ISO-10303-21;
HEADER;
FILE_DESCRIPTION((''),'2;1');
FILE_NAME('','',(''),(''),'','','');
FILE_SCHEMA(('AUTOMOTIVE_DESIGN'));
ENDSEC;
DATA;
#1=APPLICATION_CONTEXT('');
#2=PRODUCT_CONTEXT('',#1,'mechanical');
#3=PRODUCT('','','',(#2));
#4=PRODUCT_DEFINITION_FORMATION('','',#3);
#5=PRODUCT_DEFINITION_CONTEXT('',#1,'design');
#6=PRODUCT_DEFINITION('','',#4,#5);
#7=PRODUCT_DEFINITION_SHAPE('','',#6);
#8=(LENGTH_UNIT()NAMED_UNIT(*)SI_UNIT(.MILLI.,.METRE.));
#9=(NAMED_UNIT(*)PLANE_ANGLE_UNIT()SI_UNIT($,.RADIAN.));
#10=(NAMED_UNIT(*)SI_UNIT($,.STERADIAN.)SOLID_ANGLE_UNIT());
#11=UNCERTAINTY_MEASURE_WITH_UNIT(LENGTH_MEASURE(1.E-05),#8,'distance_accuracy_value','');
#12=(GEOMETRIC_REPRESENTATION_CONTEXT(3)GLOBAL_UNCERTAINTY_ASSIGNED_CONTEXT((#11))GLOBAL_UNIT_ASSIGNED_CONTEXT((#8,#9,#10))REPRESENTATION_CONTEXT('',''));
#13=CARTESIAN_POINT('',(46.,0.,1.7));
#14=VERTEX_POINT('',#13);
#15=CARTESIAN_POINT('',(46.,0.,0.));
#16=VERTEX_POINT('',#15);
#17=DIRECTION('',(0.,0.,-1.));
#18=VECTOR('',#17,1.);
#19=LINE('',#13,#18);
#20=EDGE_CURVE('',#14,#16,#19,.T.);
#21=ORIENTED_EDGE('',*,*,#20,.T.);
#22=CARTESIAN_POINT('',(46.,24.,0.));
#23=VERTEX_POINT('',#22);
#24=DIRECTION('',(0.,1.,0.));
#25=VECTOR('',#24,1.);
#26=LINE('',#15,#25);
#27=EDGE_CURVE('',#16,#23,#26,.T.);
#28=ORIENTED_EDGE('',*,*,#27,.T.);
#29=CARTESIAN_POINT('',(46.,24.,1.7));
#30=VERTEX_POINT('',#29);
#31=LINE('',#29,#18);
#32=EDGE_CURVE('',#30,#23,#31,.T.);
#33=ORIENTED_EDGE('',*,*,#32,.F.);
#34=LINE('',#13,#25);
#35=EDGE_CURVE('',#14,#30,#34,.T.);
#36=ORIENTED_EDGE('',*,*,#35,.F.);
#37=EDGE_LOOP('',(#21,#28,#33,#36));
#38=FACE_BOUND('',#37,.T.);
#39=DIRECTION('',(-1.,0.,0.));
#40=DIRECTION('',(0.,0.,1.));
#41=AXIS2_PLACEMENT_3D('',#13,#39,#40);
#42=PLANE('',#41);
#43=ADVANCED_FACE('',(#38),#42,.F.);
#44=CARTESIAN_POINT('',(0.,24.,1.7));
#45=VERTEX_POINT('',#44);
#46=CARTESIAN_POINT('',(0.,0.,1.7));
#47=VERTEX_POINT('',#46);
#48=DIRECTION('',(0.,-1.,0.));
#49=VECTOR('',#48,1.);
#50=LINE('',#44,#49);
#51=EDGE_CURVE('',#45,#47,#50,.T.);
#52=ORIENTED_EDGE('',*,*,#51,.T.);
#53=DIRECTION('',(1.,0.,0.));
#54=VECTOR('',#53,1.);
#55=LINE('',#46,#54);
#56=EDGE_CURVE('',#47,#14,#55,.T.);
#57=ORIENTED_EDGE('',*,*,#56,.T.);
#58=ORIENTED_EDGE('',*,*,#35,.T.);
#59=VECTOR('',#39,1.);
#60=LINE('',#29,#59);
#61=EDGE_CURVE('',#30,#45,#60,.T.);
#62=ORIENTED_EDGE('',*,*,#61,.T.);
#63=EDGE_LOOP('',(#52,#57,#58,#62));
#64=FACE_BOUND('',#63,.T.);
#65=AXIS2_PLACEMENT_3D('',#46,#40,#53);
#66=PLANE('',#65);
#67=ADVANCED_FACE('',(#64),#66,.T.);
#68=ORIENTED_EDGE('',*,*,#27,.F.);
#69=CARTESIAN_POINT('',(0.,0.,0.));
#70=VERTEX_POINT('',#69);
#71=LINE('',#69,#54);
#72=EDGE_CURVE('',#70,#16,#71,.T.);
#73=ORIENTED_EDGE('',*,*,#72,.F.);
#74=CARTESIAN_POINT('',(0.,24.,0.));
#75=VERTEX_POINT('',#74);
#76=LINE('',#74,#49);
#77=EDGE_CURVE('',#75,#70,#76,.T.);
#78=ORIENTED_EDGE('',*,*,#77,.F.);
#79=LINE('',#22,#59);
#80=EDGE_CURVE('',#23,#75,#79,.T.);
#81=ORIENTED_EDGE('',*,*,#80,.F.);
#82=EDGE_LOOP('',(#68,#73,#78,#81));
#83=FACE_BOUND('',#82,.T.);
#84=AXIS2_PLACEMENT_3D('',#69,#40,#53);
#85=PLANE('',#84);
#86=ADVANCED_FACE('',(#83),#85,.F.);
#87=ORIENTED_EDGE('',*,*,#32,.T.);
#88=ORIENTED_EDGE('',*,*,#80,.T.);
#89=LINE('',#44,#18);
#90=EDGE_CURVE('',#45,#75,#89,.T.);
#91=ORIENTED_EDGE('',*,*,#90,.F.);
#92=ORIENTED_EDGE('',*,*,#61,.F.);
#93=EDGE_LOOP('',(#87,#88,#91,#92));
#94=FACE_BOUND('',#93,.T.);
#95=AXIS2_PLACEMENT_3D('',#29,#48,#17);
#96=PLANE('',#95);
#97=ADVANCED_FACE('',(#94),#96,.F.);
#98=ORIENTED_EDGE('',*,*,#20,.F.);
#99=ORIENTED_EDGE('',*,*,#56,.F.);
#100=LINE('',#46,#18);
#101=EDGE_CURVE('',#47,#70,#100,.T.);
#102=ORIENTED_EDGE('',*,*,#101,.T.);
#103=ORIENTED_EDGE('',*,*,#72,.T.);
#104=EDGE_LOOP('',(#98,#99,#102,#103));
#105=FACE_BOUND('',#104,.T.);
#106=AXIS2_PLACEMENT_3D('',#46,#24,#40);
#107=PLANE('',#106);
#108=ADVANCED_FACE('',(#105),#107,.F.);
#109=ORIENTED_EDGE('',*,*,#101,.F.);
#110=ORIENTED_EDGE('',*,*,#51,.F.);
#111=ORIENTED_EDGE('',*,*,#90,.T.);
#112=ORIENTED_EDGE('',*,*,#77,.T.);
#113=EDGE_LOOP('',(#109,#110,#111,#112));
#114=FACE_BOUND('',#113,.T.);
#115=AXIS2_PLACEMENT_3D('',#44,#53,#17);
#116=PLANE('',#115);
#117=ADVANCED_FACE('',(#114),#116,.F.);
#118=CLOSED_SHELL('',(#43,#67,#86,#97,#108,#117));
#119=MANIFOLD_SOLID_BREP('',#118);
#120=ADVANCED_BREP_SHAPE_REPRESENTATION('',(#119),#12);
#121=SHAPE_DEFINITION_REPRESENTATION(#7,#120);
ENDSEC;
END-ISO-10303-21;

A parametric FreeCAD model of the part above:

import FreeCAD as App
import Part
import Sketcher
from FreeCAD import Vector


def add_polygon(sketch, points):
    """Adds a closed chain of lines whose ends are joined by coincident constraints."""
    first, n = sketch.GeometryCount, len(points)
    for a, b in zip(points, points[1:] + points[:1]):
        sketch.addGeometry(Part.LineSegment(App.Vector(*a, 0), App.Vector(*b, 0)), False)
    for i in range(n):
        sketch.addConstraint(Sketcher.Constraint("Coincident", first + i, 2, first + (i + 1) % n, 1))

doc = App.newDocument("Part")
body = doc.addObject("PartDesign::Body", "Body")

sketch1 = body.newObject("Sketcher::SketchObject", "Sketch")
sketch1.AttachmentSupport = (doc.getObject("XY_Plane"), [""])
sketch1.MapMode = "FlatFace"
add_polygon(sketch1, [(0, 24), (0, 0), (46, 0), (46, 24)])
sketch1.addConstraint(Sketcher.Constraint("Vertical", 0))
sketch1.addConstraint(Sketcher.Constraint("Horizontal", 1))
sketch1.addConstraint(Sketcher.Constraint("Vertical", 2))
sketch1.addConstraint(Sketcher.Constraint("Horizontal", 3))
sketch1.addConstraint(Sketcher.Constraint("Coincident", 0, 2, -1, 1))
sketch1.addConstraint(Sketcher.Constraint("DistanceX", 1, 1, 1, 2, 46.0))
sketch1.addConstraint(Sketcher.Constraint("DistanceY", 0, 2, 0, 1, 24.0))
pad1 = body.newObject("PartDesign::Pad", "Pad")
pad1.Profile = sketch1
pad1.Length = 1.7

doc.recompute()
